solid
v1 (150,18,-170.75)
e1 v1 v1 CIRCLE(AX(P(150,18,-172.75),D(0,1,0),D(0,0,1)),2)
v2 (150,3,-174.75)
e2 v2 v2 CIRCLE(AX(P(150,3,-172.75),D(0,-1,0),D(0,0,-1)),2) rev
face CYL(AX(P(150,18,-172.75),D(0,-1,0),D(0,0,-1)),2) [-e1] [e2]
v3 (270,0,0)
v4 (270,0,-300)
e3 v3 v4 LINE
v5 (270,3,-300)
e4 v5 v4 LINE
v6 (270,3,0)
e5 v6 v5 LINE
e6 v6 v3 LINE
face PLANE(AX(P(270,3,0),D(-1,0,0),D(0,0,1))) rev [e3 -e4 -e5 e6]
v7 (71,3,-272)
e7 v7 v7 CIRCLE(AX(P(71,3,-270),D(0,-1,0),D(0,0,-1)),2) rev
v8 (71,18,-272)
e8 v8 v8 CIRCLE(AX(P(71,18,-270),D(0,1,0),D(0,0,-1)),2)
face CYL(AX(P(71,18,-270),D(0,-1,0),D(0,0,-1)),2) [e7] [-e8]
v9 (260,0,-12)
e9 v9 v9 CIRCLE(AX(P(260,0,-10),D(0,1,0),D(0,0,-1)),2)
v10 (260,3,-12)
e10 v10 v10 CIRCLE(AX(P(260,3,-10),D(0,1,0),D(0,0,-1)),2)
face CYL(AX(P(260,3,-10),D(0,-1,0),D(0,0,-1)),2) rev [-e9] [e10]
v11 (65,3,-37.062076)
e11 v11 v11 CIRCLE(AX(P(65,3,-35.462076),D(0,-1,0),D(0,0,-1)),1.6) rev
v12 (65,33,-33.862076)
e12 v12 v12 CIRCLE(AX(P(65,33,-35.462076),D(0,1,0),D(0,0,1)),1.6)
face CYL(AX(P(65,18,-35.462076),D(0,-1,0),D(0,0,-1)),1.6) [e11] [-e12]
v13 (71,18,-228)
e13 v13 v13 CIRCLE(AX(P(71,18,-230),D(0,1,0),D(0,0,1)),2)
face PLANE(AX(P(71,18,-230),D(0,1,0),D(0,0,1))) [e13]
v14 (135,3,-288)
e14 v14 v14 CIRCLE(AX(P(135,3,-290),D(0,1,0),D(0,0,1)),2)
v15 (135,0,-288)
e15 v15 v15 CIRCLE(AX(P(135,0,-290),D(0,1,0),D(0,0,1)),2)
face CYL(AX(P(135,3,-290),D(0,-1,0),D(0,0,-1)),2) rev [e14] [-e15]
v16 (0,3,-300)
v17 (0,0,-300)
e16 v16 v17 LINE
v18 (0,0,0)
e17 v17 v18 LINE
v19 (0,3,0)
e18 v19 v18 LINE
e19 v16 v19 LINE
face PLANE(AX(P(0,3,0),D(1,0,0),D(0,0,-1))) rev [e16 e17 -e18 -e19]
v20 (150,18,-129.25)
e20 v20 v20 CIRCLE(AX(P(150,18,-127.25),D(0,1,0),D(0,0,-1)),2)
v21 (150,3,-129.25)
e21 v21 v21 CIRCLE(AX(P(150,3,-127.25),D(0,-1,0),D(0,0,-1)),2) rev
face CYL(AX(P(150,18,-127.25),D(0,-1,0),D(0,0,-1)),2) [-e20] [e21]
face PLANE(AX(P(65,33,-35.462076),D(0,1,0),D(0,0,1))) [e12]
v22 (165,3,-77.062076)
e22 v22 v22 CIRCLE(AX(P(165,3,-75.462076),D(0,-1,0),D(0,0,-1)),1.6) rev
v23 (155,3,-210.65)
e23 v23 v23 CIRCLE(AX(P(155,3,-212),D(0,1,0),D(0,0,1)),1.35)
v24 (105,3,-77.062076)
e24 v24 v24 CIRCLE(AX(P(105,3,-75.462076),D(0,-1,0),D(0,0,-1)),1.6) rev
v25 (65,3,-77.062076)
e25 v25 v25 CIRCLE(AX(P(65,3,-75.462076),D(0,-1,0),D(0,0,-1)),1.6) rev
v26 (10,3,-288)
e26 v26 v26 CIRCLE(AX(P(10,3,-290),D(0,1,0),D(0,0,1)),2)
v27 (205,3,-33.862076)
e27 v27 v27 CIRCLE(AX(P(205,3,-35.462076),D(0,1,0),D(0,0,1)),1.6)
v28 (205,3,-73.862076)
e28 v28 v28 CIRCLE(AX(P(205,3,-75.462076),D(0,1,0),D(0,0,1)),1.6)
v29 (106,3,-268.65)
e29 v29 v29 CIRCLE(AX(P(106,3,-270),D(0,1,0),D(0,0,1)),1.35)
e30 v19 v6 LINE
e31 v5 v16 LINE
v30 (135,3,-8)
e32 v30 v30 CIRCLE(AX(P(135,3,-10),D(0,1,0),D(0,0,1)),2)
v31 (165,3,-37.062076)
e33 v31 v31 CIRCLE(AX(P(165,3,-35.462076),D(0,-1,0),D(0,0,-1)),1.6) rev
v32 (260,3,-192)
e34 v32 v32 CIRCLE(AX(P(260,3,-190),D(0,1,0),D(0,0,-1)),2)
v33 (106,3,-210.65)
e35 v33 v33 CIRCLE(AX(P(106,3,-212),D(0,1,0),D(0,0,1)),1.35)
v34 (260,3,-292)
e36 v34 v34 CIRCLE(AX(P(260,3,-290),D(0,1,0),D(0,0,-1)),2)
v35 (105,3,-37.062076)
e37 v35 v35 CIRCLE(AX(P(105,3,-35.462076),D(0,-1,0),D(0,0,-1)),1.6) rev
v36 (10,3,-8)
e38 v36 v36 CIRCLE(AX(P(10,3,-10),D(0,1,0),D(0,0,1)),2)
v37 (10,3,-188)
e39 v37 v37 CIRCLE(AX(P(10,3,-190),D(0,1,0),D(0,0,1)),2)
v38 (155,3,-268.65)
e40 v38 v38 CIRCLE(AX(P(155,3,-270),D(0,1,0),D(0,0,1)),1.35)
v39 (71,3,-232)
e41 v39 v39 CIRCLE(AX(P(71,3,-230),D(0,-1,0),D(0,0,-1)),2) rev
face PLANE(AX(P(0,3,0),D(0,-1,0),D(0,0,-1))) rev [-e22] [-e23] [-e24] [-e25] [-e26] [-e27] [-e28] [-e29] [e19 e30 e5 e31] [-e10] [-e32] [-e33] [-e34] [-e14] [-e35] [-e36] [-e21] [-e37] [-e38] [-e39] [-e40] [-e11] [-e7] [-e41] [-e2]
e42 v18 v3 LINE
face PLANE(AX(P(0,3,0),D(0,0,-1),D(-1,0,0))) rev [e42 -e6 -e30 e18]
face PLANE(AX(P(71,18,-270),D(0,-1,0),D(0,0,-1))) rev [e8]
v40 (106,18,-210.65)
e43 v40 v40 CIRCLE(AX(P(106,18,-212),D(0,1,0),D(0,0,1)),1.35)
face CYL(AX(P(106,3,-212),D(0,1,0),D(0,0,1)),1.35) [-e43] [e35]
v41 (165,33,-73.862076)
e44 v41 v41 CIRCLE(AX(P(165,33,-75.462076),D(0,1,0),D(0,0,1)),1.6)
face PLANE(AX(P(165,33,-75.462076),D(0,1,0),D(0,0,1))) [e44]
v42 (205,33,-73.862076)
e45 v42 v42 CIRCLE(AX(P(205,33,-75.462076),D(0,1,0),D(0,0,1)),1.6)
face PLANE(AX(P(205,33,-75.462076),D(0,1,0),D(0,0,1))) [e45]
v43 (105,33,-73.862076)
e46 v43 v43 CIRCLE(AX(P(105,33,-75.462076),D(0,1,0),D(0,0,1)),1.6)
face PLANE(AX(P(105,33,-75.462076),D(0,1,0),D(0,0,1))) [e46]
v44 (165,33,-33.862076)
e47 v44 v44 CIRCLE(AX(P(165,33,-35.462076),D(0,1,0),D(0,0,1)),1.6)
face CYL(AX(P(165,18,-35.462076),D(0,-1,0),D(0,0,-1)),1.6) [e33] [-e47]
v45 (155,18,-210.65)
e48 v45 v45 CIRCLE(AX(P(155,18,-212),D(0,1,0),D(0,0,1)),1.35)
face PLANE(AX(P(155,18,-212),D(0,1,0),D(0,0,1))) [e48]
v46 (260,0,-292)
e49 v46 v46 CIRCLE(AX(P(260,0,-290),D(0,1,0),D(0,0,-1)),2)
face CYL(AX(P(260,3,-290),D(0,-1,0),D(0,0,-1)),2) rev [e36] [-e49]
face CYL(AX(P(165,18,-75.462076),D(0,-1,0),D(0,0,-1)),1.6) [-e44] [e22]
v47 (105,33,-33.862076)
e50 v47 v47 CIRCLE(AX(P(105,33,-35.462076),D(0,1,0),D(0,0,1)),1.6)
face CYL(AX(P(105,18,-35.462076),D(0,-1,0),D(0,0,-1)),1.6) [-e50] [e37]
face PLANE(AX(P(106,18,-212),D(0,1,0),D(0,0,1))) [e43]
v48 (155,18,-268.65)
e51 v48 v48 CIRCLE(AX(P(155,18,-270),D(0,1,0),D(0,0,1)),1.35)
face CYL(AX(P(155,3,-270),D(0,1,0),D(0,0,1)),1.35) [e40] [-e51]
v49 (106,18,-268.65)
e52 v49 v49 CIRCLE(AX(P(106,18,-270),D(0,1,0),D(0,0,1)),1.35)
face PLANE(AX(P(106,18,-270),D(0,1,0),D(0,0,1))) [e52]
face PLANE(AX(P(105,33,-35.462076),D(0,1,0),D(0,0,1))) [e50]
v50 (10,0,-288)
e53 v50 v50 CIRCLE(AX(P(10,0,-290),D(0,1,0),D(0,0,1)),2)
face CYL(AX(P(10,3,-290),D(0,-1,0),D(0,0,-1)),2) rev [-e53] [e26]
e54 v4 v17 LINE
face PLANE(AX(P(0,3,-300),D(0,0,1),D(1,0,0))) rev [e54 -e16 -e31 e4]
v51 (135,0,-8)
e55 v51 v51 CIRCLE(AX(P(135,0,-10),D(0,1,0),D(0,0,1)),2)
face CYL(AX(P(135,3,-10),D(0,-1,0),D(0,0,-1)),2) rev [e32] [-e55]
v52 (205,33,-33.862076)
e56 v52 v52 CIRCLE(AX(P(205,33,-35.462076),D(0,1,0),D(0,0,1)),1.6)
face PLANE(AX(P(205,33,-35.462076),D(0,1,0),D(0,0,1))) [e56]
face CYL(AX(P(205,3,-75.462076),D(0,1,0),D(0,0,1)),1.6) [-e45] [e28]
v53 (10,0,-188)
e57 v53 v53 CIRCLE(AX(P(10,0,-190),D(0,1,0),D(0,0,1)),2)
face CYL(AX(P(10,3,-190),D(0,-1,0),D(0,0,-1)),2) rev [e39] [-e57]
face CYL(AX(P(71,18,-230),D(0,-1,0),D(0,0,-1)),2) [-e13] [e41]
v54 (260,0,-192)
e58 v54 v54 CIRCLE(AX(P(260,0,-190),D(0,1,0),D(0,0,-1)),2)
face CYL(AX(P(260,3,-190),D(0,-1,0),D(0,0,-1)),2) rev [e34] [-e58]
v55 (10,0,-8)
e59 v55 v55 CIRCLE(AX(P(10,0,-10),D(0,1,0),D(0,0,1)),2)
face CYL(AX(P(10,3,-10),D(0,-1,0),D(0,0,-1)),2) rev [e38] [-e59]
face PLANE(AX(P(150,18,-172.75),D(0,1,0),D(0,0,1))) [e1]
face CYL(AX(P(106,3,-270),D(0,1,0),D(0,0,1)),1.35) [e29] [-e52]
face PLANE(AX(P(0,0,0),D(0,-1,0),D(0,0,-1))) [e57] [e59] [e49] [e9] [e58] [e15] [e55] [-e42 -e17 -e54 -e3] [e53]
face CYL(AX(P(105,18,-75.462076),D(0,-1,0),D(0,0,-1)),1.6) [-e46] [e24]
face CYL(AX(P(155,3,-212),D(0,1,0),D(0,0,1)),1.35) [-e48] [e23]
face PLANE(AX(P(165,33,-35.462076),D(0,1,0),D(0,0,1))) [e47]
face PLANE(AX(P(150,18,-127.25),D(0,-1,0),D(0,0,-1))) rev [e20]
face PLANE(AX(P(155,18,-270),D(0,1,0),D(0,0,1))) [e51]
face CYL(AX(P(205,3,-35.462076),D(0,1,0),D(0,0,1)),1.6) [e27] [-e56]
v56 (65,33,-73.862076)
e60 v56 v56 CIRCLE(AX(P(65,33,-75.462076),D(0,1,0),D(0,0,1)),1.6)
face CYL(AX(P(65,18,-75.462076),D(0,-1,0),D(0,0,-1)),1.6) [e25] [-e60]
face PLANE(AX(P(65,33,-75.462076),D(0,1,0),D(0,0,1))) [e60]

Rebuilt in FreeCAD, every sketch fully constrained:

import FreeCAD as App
import Part
import Sketcher

V = App.Vector

doc = App.newDocument("Part")
body = doc.addObject("PartDesign::Body", "Body")

sketch1 = body.newObject("Sketcher::SketchObject", "Sketch")
sketch1.AttachmentSupport = (doc.getObject("XZ_Plane"), [""])
sketch1.MapMode = "FlatFace"
sketch1.addGeometry(Part.LineSegment(V(0, -300, 0), V(0, 0, 0)), False)
sketch1.addGeometry(Part.LineSegment(V(0, 0, 0), V(270, 0, 0)), False)
sketch1.addGeometry(Part.LineSegment(V(270, 0, 0), V(270, -300, 0)), False)
sketch1.addGeometry(Part.LineSegment(V(270, -300, 0), V(0, -300, 0)), False)
sketch1.addGeometry(Part.Circle(V(10, -10, 0), V(0, 0, 1), 2), False)
sketch1.addGeometry(Part.Circle(V(135, -10, 0), V(0, 0, 1), 2), False)
sketch1.addGeometry(Part.Circle(V(260, -10, 0), V(0, 0, 1), 2), False)
sketch1.addGeometry(Part.Circle(V(10, -190, 0), V(0, 0, 1), 2), False)
sketch1.addGeometry(Part.Circle(V(10, -290, 0), V(0, 0, 1), 2), False)
sketch1.addGeometry(Part.Circle(V(260, -190, 0), V(0, 0, 1), 2), False)
sketch1.addGeometry(Part.Circle(V(135, -290, 0), V(0, 0, 1), 2), False)
sketch1.addGeometry(Part.Circle(V(260, -290, 0), V(0, 0, 1), 2), False)
sketch1.addConstraint(Sketcher.Constraint("Coincident", 0, 2, 1, 1))
sketch1.addConstraint(Sketcher.Constraint("Coincident", 1, 2, 2, 1))
sketch1.addConstraint(Sketcher.Constraint("Coincident", 2, 2, 3, 1))
sketch1.addConstraint(Sketcher.Constraint("Coincident", 3, 2, 0, 1))
sketch1.addConstraint(Sketcher.Constraint("Vertical", 0))
sketch1.addConstraint(Sketcher.Constraint("Horizontal", 1))
sketch1.addConstraint(Sketcher.Constraint("Vertical", 2))
sketch1.addConstraint(Sketcher.Constraint("Horizontal", 3))
sketch1.addConstraint(Sketcher.Constraint("Coincident", 0, 2, -1, 1))
sketch1.addConstraint(Sketcher.Constraint("Equal", 4, 5))
sketch1.addConstraint(Sketcher.Constraint("Equal", 5, 6))
sketch1.addConstraint(Sketcher.Constraint("Equal", 6, 7))
sketch1.addConstraint(Sketcher.Constraint("Equal", 7, 8))
sketch1.addConstraint(Sketcher.Constraint("Equal", 8, 9))
sketch1.addConstraint(Sketcher.Constraint("Equal", 9, 10))
sketch1.addConstraint(Sketcher.Constraint("Equal", 10, 11))
sketch1.addConstraint(Sketcher.Constraint("Horizontal", 4, 3, 5, 3))
sketch1.addConstraint(Sketcher.Constraint("Horizontal", 5, 3, 6, 3))
sketch1.addConstraint(Sketcher.Constraint("Horizontal", 7, 3, 9, 3))
sketch1.addConstraint(Sketcher.Constraint("Horizontal", 8, 3, 10, 3))
sketch1.addConstraint(Sketcher.Constraint("Horizontal", 10, 3, 11, 3))
sketch1.addConstraint(Sketcher.Constraint("Vertical", 4, 3, 7, 3))
sketch1.addConstraint(Sketcher.Constraint("Vertical", 7, 3, 8, 3))
sketch1.addConstraint(Sketcher.Constraint("Vertical", 6, 3, 9, 3))
sketch1.addConstraint(Sketcher.Constraint("Vertical", 5, 3, 10, 3))
sketch1.addConstraint(Sketcher.Constraint("Vertical", 9, 3, 11, 3))
sketch1.addConstraint(Sketcher.Constraint("Diameter", 4, 4.0))
sketch1.addConstraint(Sketcher.Constraint("DistanceX", 1, 1, 1, 2, 270.0))
sketch1.addConstraint(Sketcher.Constraint("DistanceY", 0, 1, 0, 2, 300.0))
sketch1.addConstraint(Sketcher.Constraint("DistanceX", -1, 1, 4, 3, 10.0))
sketch1.addConstraint(Sketcher.Constraint("DistanceY", 4, 3, -1, 1, 10.0))
sketch1.addConstraint(Sketcher.Constraint("DistanceX", -1, 1, 5, 3, 135.0))
sketch1.addConstraint(Sketcher.Constraint("DistanceX", -1, 1, 6, 3, 260.0))
sketch1.addConstraint(Sketcher.Constraint("DistanceY", 7, 3, -1, 1, 190.0))
sketch1.addConstraint(Sketcher.Constraint("DistanceY", 8, 3, -1, 1, 290.0))
pad1 = body.newObject("PartDesign::Pad", "Pad")
pad1.Profile = sketch1
pad1.Length = 3
pad1.Reversed = True

sketch2 = body.newObject("Sketcher::SketchObject", "Sketch001")
sketch2.AttachmentSupport = (doc.getObject("XZ_Plane"), [""])
sketch2.MapMode = "FlatFace"
sketch2.AttachmentOffset = App.Placement(V(0, 0, -3), App.Rotation())
sketch2.addGeometry(Part.Circle(V(106, -270, 0), V(0, 0, 1), 1.35), False)
sketch2.addGeometry(Part.Circle(V(155, -270, 0), V(0, 0, 1), 1.35), False)
sketch2.addGeometry(Part.Circle(V(106, -212, 0), V(0, 0, 1), 1.35), False)
sketch2.addGeometry(Part.Circle(V(155, -212, 0), V(0, 0, 1), 1.35), False)
sketch2.addConstraint(Sketcher.Constraint("Equal", 0, 1))
sketch2.addConstraint(Sketcher.Constraint("Equal", 1, 2))
sketch2.addConstraint(Sketcher.Constraint("Equal", 2, 3))
sketch2.addConstraint(Sketcher.Constraint("Horizontal", 0, 3, 1, 3))
sketch2.addConstraint(Sketcher.Constraint("Horizontal", 2, 3, 3, 3))
sketch2.addConstraint(Sketcher.Constraint("Vertical", 0, 3, 2, 3))
sketch2.addConstraint(Sketcher.Constraint("Vertical", 1, 3, 3, 3))
sketch2.addConstraint(Sketcher.Constraint("Diameter", 0, 2.7))
sketch2.addConstraint(Sketcher.Constraint("DistanceX", -1, 1, 0, 3, 106.0))
sketch2.addConstraint(Sketcher.Constraint("DistanceY", 0, 3, -1, 1, 270.0))
sketch2.addConstraint(Sketcher.Constraint("DistanceX", -1, 1, 1, 3, 155.0))
sketch2.addConstraint(Sketcher.Constraint("DistanceY", 2, 3, -1, 1, 212.0))
pad2 = body.newObject("PartDesign::Pad", "Pad001")
pad2.Profile = sketch2
pad2.Length = 10
pad2.Reversed = True

sketch3 = body.newObject("Sketcher::SketchObject", "Sketch002")
sketch3.AttachmentSupport = (doc.getObject("XZ_Plane"), [""])
sketch3.MapMode = "FlatFace"
sketch3.AttachmentOffset = App.Placement(V(0, 0, -3), App.Rotation())
sketch3.addGeometry(Part.Circle(V(150, -172.75, 0), V(0, 0, 1), 2), False)
sketch3.addGeometry(Part.Circle(V(150, -127.25, 0), V(0, 0, 1), 2), False)
sketch3.addConstraint(Sketcher.Constraint("Equal", 0, 1))
sketch3.addConstraint(Sketcher.Constraint("Vertical", 0, 3, 1, 3))
sketch3.addConstraint(Sketcher.Constraint("Diameter", 0, 4.0))
sketch3.addConstraint(Sketcher.Constraint("DistanceX", -1, 1, 0, 3, 150.0))
sketch3.addConstraint(Sketcher.Constraint("DistanceY", 0, 3, 1, 3, 45.5))
sketch3.addConstraint(Sketcher.Constraint("DistanceY", 0, 3, -1, 1, 172.75))
pad3 = body.newObject("PartDesign::Pad", "Pad002")
pad3.Profile = sketch3
pad3.Length = 15
pad3.Reversed = True

sketch4 = body.newObject("Sketcher::SketchObject", "Sketch003")
sketch4.AttachmentSupport = (doc.getObject("XZ_Plane"), [""])
sketch4.MapMode = "FlatFace"
sketch4.AttachmentOffset = App.Placement(V(0, 0, -13), App.Rotation())
sketch4.addGeometry(Part.Circle(V(106, -212, 0), V(0, 0, 1), 1.35), False)
sketch4.addGeometry(Part.Circle(V(155, -212, 0), V(0, 0, 1), 1.35), False)
sketch4.addGeometry(Part.Circle(V(155, -270, 0), V(0, 0, 1), 1.35), False)
sketch4.addGeometry(Part.Circle(V(106, -270, 0), V(0, 0, 1), 1.35), False)
sketch4.addConstraint(Sketcher.Constraint("Equal", 0, 1))
sketch4.addConstraint(Sketcher.Constraint("Equal", 1, 2))
sketch4.addConstraint(Sketcher.Constraint("Equal", 2, 3))
sketch4.addConstraint(Sketcher.Constraint("Horizontal", 0, 3, 1, 3))
sketch4.addConstraint(Sketcher.Constraint("Horizontal", 2, 3, 3, 3))
sketch4.addConstraint(Sketcher.Constraint("Vertical", 1, 3, 2, 3))
sketch4.addConstraint(Sketcher.Constraint("Vertical", 0, 3, 3, 3))
sketch4.addConstraint(Sketcher.Constraint("Diameter", 0, 2.7))
sketch4.addConstraint(Sketcher.Constraint("DistanceX", -1, 1, 0, 3, 106.0))
sketch4.addConstraint(Sketcher.Constraint("DistanceY", 0, 3, -1, 1, 212.0))
sketch4.addConstraint(Sketcher.Constraint("DistanceX", -1, 1, 1, 3, 155.0))
sketch4.addConstraint(Sketcher.Constraint("DistanceY", 2, 3, -1, 1, 270.0))
pad4 = body.newObject("PartDesign::Pad", "Pad003")
pad4.Profile = sketch4
pad4.Length = 5
pad4.Reversed = True

sketch5 = body.newObject("Sketcher::SketchObject", "Sketch004")
sketch5.AttachmentSupport = (doc.getObject("XZ_Plane"), [""])
sketch5.MapMode = "FlatFace"
sketch5.AttachmentOffset = App.Placement(V(0, 0, -3), App.Rotation())
sketch5.addGeometry(Part.Circle(V(41, -270, 0), V(0, 0, 1), 2), False)
sketch5.addGeometry(Part.Circle(V(71, -270, 0), V(0, 0, 1), 2), False)
sketch5.addConstraint(Sketcher.Constraint("Equal", 0, 1))
sketch5.addConstraint(Sketcher.Constraint("Horizontal", 0, 3, 1, 3))
sketch5.addConstraint(Sketcher.Constraint("Diameter", 0, 4.0))
sketch5.addConstraint(Sketcher.Constraint("DistanceX", -1, 1, 0, 3, 41.0))
sketch5.addConstraint(Sketcher.Constraint("DistanceY", 0, 3, -1, 1, 270.0))
sketch5.addConstraint(Sketcher.Constraint("DistanceX", -1, 1, 1, 3, 71.0))
pad5 = body.newObject("PartDesign::Pad", "Pad004")
pad5.Profile = sketch5
pad5.Length = 15
pad5.Reversed = True

sketch6 = body.newObject("Sketcher::SketchObject", "Sketch005")
sketch6.AttachmentSupport = (doc.getObject("XZ_Plane"), [""])
sketch6.MapMode = "FlatFace"
sketch6.AttachmentOffset = App.Placement(V(0, 0, -3), App.Rotation())
sketch6.addGeometry(Part.Circle(V(65, -75.462076, 0), V(0, 0, 1), 1.6), False)
sketch6.addGeometry(Part.Circle(V(105, -75.462076, 0), V(0, 0, 1), 1.6), False)
sketch6.addGeometry(Part.Circle(V(65, -35.462076, 0), V(0, 0, 1), 1.6), False)
sketch6.addGeometry(Part.Circle(V(105, -35.462076, 0), V(0, 0, 1), 1.6), False)
sketch6.addGeometry(Part.Circle(V(165, -35.462076, 0), V(0, 0, 1), 1.6), False)
sketch6.addGeometry(Part.Circle(V(205, -35.462076, 0), V(0, 0, 1), 1.6), False)
sketch6.addGeometry(Part.Circle(V(205, -75.462076, 0), V(0, 0, 1), 1.6), False)
sketch6.addGeometry(Part.Circle(V(165, -75.462076, 0), V(0, 0, 1), 1.6), False)
sketch6.addConstraint(Sketcher.Constraint("Equal", 0, 1))
sketch6.addConstraint(Sketcher.Constraint("Equal", 1, 2))
sketch6.addConstraint(Sketcher.Constraint("Equal", 2, 3))
sketch6.addConstraint(Sketcher.Constraint("Equal", 3, 4))
sketch6.addConstraint(Sketcher.Constraint("Equal", 4, 5))
sketch6.addConstraint(Sketcher.Constraint("Equal", 5, 6))
sketch6.addConstraint(Sketcher.Constraint("Equal", 6, 7))
sketch6.addConstraint(Sketcher.Constraint("Horizontal", 0, 3, 1, 3))
sketch6.addConstraint(Sketcher.Constraint("Horizontal", 2, 3, 3, 3))
sketch6.addConstraint(Sketcher.Constraint("Horizontal", 3, 3, 4, 3))
sketch6.addConstraint(Sketcher.Constraint("Horizontal", 4, 3, 5, 3))
sketch6.addConstraint(Sketcher.Constraint("Horizontal", 1, 3, 6, 3))
sketch6.addConstraint(Sketcher.Constraint("Horizontal", 6, 3, 7, 3))
sketch6.addConstraint(Sketcher.Constraint("Vertical", 0, 3, 2, 3))
sketch6.addConstraint(Sketcher.Constraint("Vertical", 1, 3, 3, 3))
sketch6.addConstraint(Sketcher.Constraint("Vertical", 5, 3, 6, 3))
sketch6.addConstraint(Sketcher.Constraint("Vertical", 4, 3, 7, 3))
sketch6.addConstraint(Sketcher.Constraint("Diameter", 0, 3.2))
sketch6.addConstraint(Sketcher.Constraint("DistanceX", -1, 1, 0, 3, 65.0))
sketch6.addConstraint(Sketcher.Constraint("DistanceX", -1, 1, 1, 3, 105.0))
sketch6.addConstraint(Sketcher.Constraint("DistanceX", -1, 1, 4, 3, 165.0))
sketch6.addConstraint(Sketcher.Constraint("DistanceX", -1, 1, 5, 3, 205.0))
sketch6.addConstraint(Sketcher.Constraint("DistanceY", 0, 3, 2, 3, 40.0))
sketch6.addConstraint(Sketcher.Constraint("DistanceY", 0, 3, -1, 1, 75.462076))
pad6 = body.newObject("PartDesign::Pad", "Pad005")
pad6.Profile = sketch6
pad6.Length = 15
pad6.Reversed = True

sketch7 = body.newObject("Sketcher::SketchObject", "Sketch006")
sketch7.AttachmentSupport = (doc.getObject("XZ_Plane"), [""])
sketch7.MapMode = "FlatFace"
sketch7.AttachmentOffset = App.Placement(V(0, 0, -3), App.Rotation())
sketch7.addGeometry(Part.Circle(V(41, -230, 0), V(0, 0, 1), 2), False)
sketch7.addGeometry(Part.Circle(V(71, -230, 0), V(0, 0, 1), 2), False)
sketch7.addConstraint(Sketcher.Constraint("Equal", 0, 1))
sketch7.addConstraint(Sketcher.Constraint("Horizontal", 0, 3, 1, 3))
sketch7.addConstraint(Sketcher.Constraint("Diameter", 0, 4.0))
sketch7.addConstraint(Sketcher.Constraint("DistanceX", -1, 1, 0, 3, 41.0))
sketch7.addConstraint(Sketcher.Constraint("DistanceY", 0, 3, -1, 1, 230.0))
sketch7.addConstraint(Sketcher.Constraint("DistanceX", -1, 1, 1, 3, 71.0))
pad7 = body.newObject("PartDesign::Pad", "Pad006")
pad7.Profile = sketch7
pad7.Length = 15
pad7.Reversed = True

sketch8 = body.newObject("Sketcher::SketchObject", "Sketch007")
sketch8.AttachmentSupport = (doc.getObject("XZ_Plane"), [""])
sketch8.MapMode = "FlatFace"
sketch8.AttachmentOffset = App.Placement(V(0, 0, -3), App.Rotation())
sketch8.addGeometry(Part.Circle(V(205, -75.462076, 0), V(0, 0, 1), 1.6), False)
sketch8.addGeometry(Part.Circle(V(205, -35.462076, 0), V(0, 0, 1), 1.6), False)
sketch8.addConstraint(Sketcher.Constraint("Equal", 0, 1))
sketch8.addConstraint(Sketcher.Constraint("Vertical", 0, 3, 1, 3))
sketch8.addConstraint(Sketcher.Constraint("Diameter", 0, 3.2))
sketch8.addConstraint(Sketcher.Constraint("DistanceX", -1, 1, 0, 3, 205.0))
sketch8.addConstraint(Sketcher.Constraint("DistanceY", 0, 3, 1, 3, 40.0))
sketch8.addConstraint(Sketcher.Constraint("DistanceY", 0, 3, -1, 1, 75.462076))
pocket1 = body.newObject("PartDesign::Pocket", "Pocket")
pocket1.Profile = sketch8
pocket1.Length = 15

sketch9 = body.newObject("Sketcher::SketchObject", "Sketch008")
sketch9.AttachmentSupport = (doc.getObject("XZ_Plane"), [""])
sketch9.MapMode = "FlatFace"
sketch9.AttachmentOffset = App.Placement(V(0, 0, -3), App.Rotation())
sketch9.addGeometry(Part.Circle(V(185, -75.462076, 0), V(0, 0, 1), 1.6), False)
sketch9.addGeometry(Part.Circle(V(185, -35.462076, 0), V(0, 0, 1), 1.6), False)
sketch9.addConstraint(Sketcher.Constraint("Equal", 0, 1))
sketch9.addConstraint(Sketcher.Constraint("Vertical", 0, 3, 1, 3))
sketch9.addConstraint(Sketcher.Constraint("Diameter", 0, 3.2))
sketch9.addConstraint(Sketcher.Constraint("DistanceX", -1, 1, 0, 3, 185.0))
sketch9.addConstraint(Sketcher.Constraint("DistanceY", 0, 3, 1, 3, 40.0))
sketch9.addConstraint(Sketcher.Constraint("DistanceY", 0, 3, -1, 1, 75.462076))
pad8 = body.newObject("PartDesign::Pad", "Pad007")
pad8.Profile = sketch9
pad8.Length = 15
pad8.Reversed = True

sketch10 = body.newObject("Sketcher::SketchObject", "Sketch009")
sketch10.AttachmentSupport = (doc.getObject("XZ_Plane"), [""])
sketch10.MapMode = "FlatFace"
sketch10.AttachmentOffset = App.Placement(V(0, 0, -3), App.Rotation())
sketch10.addGeometry(Part.Circle(V(185, -75.462076, 0), V(0, 0, 1), 1.6), False)
sketch10.addGeometry(Part.Circle(V(185, -35.462076, 0), V(0, 0, 1), 1.6), False)
sketch10.addConstraint(Sketcher.Constraint("Equal", 0, 1))
sketch10.addConstraint(Sketcher.Constraint("Vertical", 0, 3, 1, 3))
sketch10.addConstraint(Sketcher.Constraint("Diameter", 0, 3.2))
sketch10.addConstraint(Sketcher.Constraint("DistanceX", -1, 1, 0, 3, 185.0))
sketch10.addConstraint(Sketcher.Constraint("DistanceY", 0, 3, 1, 3, 40.0))
sketch10.addConstraint(Sketcher.Constraint("DistanceY", 0, 3, -1, 1, 75.462076))
pocket2 = body.newObject("PartDesign::Pocket", "Pocket001")
pocket2.Profile = sketch10
pocket2.Length = 15

sketch11 = body.newObject("Sketcher::SketchObject", "Sketch010")
sketch11.AttachmentSupport = (doc.getObject("XZ_Plane"), [""])
sketch11.MapMode = "FlatFace"
sketch11.AttachmentOffset = App.Placement(V(0, 0, -18), App.Rotation())
sketch11.addGeometry(Part.Circle(V(205, -75.462076, 0), V(0, 0, 1), 1.6), False)
sketch11.addGeometry(Part.Circle(V(205, -35.462076, 0), V(0, 0, 1), 1.6), False)
sketch11.addConstraint(Sketcher.Constraint("Equal", 0, 1))
sketch11.addConstraint(Sketcher.Constraint("Vertical", 0, 3, 1, 3))
sketch11.addConstraint(Sketcher.Constraint("Diameter", 0, 3.2))
sketch11.addConstraint(Sketcher.Constraint("DistanceX", -1, 1, 0, 3, 205.0))
sketch11.addConstraint(Sketcher.Constraint("DistanceY", 0, 3, 1, 3, 40.0))
sketch11.addConstraint(Sketcher.Constraint("DistanceY", 0, 3, -1, 1, 75.462076))
pad9 = body.newObject("PartDesign::Pad", "Pad008")
pad9.Profile = sketch11
pad9.Length = 15

sketch12 = body.newObject("Sketcher::SketchObject", "Sketch011")
sketch12.AttachmentSupport = (doc.getObject("XZ_Plane"), [""])
sketch12.MapMode = "FlatFace"
sketch12.AttachmentOffset = App.Placement(V(0, 0, -18), App.Rotation())
sketch12.addGeometry(Part.Circle(V(65, -35.462076, 0), V(0, 0, 1), 1.6), False)
sketch12.addGeometry(Part.Circle(V(105, -35.462076, 0), V(0, 0, 1), 1.6), False)
sketch12.addGeometry(Part.Circle(V(105, -75.462076, 0), V(0, 0, 1), 1.6), False)
sketch12.addGeometry(Part.Circle(V(65, -75.462076, 0), V(0, 0, 1), 1.6), False)
sketch12.addGeometry(Part.Circle(V(165, -75.462076, 0), V(0, 0, 1), 1.6), False)
sketch12.addGeometry(Part.Circle(V(165, -35.462076, 0), V(0, 0, 1), 1.6), False)
sketch12.addGeometry(Part.Circle(V(205, -35.462076, 0), V(0, 0, 1), 1.6), False)
sketch12.addGeometry(Part.Circle(V(205, -75.462076, 0), V(0, 0, 1), 1.6), False)
sketch12.addConstraint(Sketcher.Constraint("Equal", 0, 1))
sketch12.addConstraint(Sketcher.Constraint("Equal", 1, 2))
sketch12.addConstraint(Sketcher.Constraint("Equal", 2, 3))
sketch12.addConstraint(Sketcher.Constraint("Equal", 3, 4))
sketch12.addConstraint(Sketcher.Constraint("Equal", 4, 5))
sketch12.addConstraint(Sketcher.Constraint("Equal", 5, 6))
sketch12.addConstraint(Sketcher.Constraint("Equal", 6, 7))
sketch12.addConstraint(Sketcher.Constraint("Horizontal", 0, 3, 1, 3))
sketch12.addConstraint(Sketcher.Constraint("Horizontal", 2, 3, 3, 3))
sketch12.addConstraint(Sketcher.Constraint("Horizontal", 3, 3, 4, 3))
sketch12.addConstraint(Sketcher.Constraint("Horizontal", 1, 3, 5, 3))
sketch12.addConstraint(Sketcher.Constraint("Horizontal", 5, 3, 6, 3))
sketch12.addConstraint(Sketcher.Constraint("Horizontal", 4, 3, 7, 3))
sketch12.addConstraint(Sketcher.Constraint("Vertical", 1, 3, 2, 3))
sketch12.addConstraint(Sketcher.Constraint("Vertical", 0, 3, 3, 3))
sketch12.addConstraint(Sketcher.Constraint("Vertical", 4, 3, 5, 3))
sketch12.addConstraint(Sketcher.Constraint("Vertical", 6, 3, 7, 3))
sketch12.addConstraint(Sketcher.Constraint("Diameter", 0, 3.2))
sketch12.addConstraint(Sketcher.Constraint("DistanceX", -1, 1, 0, 3, 65.0))
sketch12.addConstraint(Sketcher.Constraint("DistanceX", -1, 1, 1, 3, 105.0))
sketch12.addConstraint(Sketcher.Constraint("DistanceX", -1, 1, 4, 3, 165.0))
sketch12.addConstraint(Sketcher.Constraint("DistanceX", -1, 1, 6, 3, 205.0))
sketch12.addConstraint(Sketcher.Constraint("DistanceY", 2, 3, 1, 3, 40.0))
sketch12.addConstraint(Sketcher.Constraint("DistanceY", 0, 3, -1, 1, 35.462076))
pad10 = body.newObject("PartDesign::Pad", "Pad009")
pad10.Profile = sketch12
pad10.Length = 15
pad10.Reversed = True

sketch13 = body.newObject("Sketcher::SketchObject", "Sketch012")
sketch13.AttachmentSupport = (doc.getObject("XZ_Plane"), [""])
sketch13.MapMode = "FlatFace"
sketch13.AttachmentOffset = App.Placement(V(0, 0, -3), App.Rotation())
sketch13.addGeometry(Part.Circle(V(41, -270, 0), V(0, 0, 1), 2), False)
sketch13.addGeometry(Part.Circle(V(41, -230, 0), V(0, 0, 1), 2), False)
sketch13.addConstraint(Sketcher.Constraint("Equal", 0, 1))
sketch13.addConstraint(Sketcher.Constraint("Vertical", 0, 3, 1, 3))
sketch13.addConstraint(Sketcher.Constraint("Diameter", 0, 4.0))
sketch13.addConstraint(Sketcher.Constraint("DistanceX", -1, 1, 0, 3, 41.0))
sketch13.addConstraint(Sketcher.Constraint("DistanceY", 0, 3, -1, 1, 270.0))
sketch13.addConstraint(Sketcher.Constraint("DistanceY", 1, 3, -1, 1, 230.0))
pocket3 = body.newObject("PartDesign::Pocket", "Pocket002")
pocket3.Profile = sketch13
pocket3.Length = 15

sketch14 = body.newObject("Sketcher::SketchObject", "Sketch013")
sketch14.AttachmentSupport = (doc.getObject("XZ_Plane"), [""])
sketch14.MapMode = "FlatFace"
sketch14.AttachmentOffset = App.Placement(V(0, 0, -18), App.Rotation())
sketch14.addGeometry(Part.Circle(V(155, -190, 0), V(0, 0, 1), 1.35), False)
sketch14.addGeometry(Part.Circle(V(106, -190, 0), V(0, 0, 1), 1.35), False)
sketch14.addGeometry(Part.Circle(V(106, -248, 0), V(0, 0, 1), 1.35), False)
sketch14.addGeometry(Part.Circle(V(155, -248, 0), V(0, 0, 1), 1.35), False)
sketch14.addConstraint(Sketcher.Constraint("Equal", 0, 1))
sketch14.addConstraint(Sketcher.Constraint("Equal", 1, 2))
sketch14.addConstraint(Sketcher.Constraint("Equal", 2, 3))
sketch14.addConstraint(Sketcher.Constraint("Horizontal", 0, 3, 1, 3))
sketch14.addConstraint(Sketcher.Constraint("Horizontal", 2, 3, 3, 3))
sketch14.addConstraint(Sketcher.Constraint("Vertical", 1, 3, 2, 3))
sketch14.addConstraint(Sketcher.Constraint("Vertical", 0, 3, 3, 3))
sketch14.addConstraint(Sketcher.Constraint("Diameter", 0, 2.7))
sketch14.addConstraint(Sketcher.Constraint("DistanceX", -1, 1, 0, 3, 155.0))
sketch14.addConstraint(Sketcher.Constraint("DistanceY", 0, 3, -1, 1, 190.0))
sketch14.addConstraint(Sketcher.Constraint("DistanceX", -1, 1, 1, 3, 106.0))
sketch14.addConstraint(Sketcher.Constraint("DistanceY", 2, 3, -1, 1, 248.0))
pad11 = body.newObject("PartDesign::Pad", "Pad010")
pad11.Profile = sketch14
pad11.Length = 15

sketch15 = body.newObject("Sketcher::SketchObject", "Sketch014")
sketch15.AttachmentSupport = (doc.getObject("XZ_Plane"), [""])
sketch15.MapMode = "FlatFace"
sketch15.AttachmentOffset = App.Placement(V(0, 0, -3), App.Rotation())
sketch15.addGeometry(Part.Circle(V(106, -212, 0), V(0, 0, 1), 1.35), False)
sketch15.addGeometry(Part.Circle(V(155, -212, 0), V(0, 0, 1), 1.35), False)
sketch15.addGeometry(Part.Circle(V(155, -270, 0), V(0, 0, 1), 1.35), False)
sketch15.addGeometry(Part.Circle(V(106, -270, 0), V(0, 0, 1), 1.35), False)
sketch15.addConstraint(Sketcher.Constraint("Equal", 0, 1))
sketch15.addConstraint(Sketcher.Constraint("Equal", 1, 2))
sketch15.addConstraint(Sketcher.Constraint("Equal", 2, 3))
sketch15.addConstraint(Sketcher.Constraint("Horizontal", 0, 3, 1, 3))
sketch15.addConstraint(Sketcher.Constraint("Horizontal", 2, 3, 3, 3))
sketch15.addConstraint(Sketcher.Constraint("Vertical", 1, 3, 2, 3))
sketch15.addConstraint(Sketcher.Constraint("Vertical", 0, 3, 3, 3))
sketch15.addConstraint(Sketcher.Constraint("Diameter", 0, 2.7))
sketch15.addConstraint(Sketcher.Constraint("DistanceX", -1, 1, 0, 3, 106.0))
sketch15.addConstraint(Sketcher.Constraint("DistanceY", 0, 3, -1, 1, 212.0))
sketch15.addConstraint(Sketcher.Constraint("DistanceX", -1, 1, 1, 3, 155.0))
sketch15.addConstraint(Sketcher.Constraint("DistanceY", 2, 3, -1, 1, 270.0))
pocket4 = body.newObject("PartDesign::Pocket", "Pocket003")
pocket4.Profile = sketch15
pocket4.Length = 15

sketch16 = body.newObject("Sketcher::SketchObject", "Sketch015")
sketch16.AttachmentSupport = (doc.getObject("XZ_Plane"), [""])
sketch16.MapMode = "FlatFace"
sketch16.AttachmentOffset = App.Placement(V(0, 0, -18), App.Rotation())
sketch16.addGeometry(Part.Circle(V(106, -270, 0), V(0, 0, 1), 1.35), False)
sketch16.addGeometry(Part.Circle(V(155, -270, 0), V(0, 0, 1), 1.35), False)
sketch16.addGeometry(Part.Circle(V(106, -212, 0), V(0, 0, 1), 1.35), False)
sketch16.addGeometry(Part.Circle(V(155, -212, 0), V(0, 0, 1), 1.35), False)
sketch16.addConstraint(Sketcher.Constraint("Equal", 0, 1))
sketch16.addConstraint(Sketcher.Constraint("Equal", 1, 2))
sketch16.addConstraint(Sketcher.Constraint("Equal", 2, 3))
sketch16.addConstraint(Sketcher.Constraint("Horizontal", 0, 3, 1, 3))
sketch16.addConstraint(Sketcher.Constraint("Horizontal", 2, 3, 3, 3))
sketch16.addConstraint(Sketcher.Constraint("Vertical", 0, 3, 2, 3))
sketch16.addConstraint(Sketcher.Constraint("Vertical", 1, 3, 3, 3))
sketch16.addConstraint(Sketcher.Constraint("Diameter", 0, 2.7))
sketch16.addConstraint(Sketcher.Constraint("DistanceX", -1, 1, 0, 3, 106.0))
sketch16.addConstraint(Sketcher.Constraint("DistanceY", 0, 3, -1, 1, 270.0))
sketch16.addConstraint(Sketcher.Constraint("DistanceX", -1, 1, 1, 3, 155.0))
sketch16.addConstraint(Sketcher.Constraint("DistanceY", 2, 3, -1, 1, 212.0))
pad12 = body.newObject("PartDesign::Pad", "Pad011")
pad12.Profile = sketch16
pad12.Length = 15

sketch17 = body.newObject("Sketcher::SketchObject", "Sketch016")
sketch17.AttachmentSupport = (doc.getObject("XZ_Plane"), [""])
sketch17.MapMode = "FlatFace"
sketch17.AttachmentOffset = App.Placement(V(0, 0, -18), App.Rotation())
sketch17.addGeometry(Part.Circle(V(106, -248, 0), V(0, 0, 1), 1.35), False)
sketch17.addGeometry(Part.Circle(V(155, -248, 0), V(0, 0, 1), 1.35), False)
sketch17.addGeometry(Part.Circle(V(155, -190, 0), V(0, 0, 1), 1.35), False)
sketch17.addGeometry(Part.Circle(V(106, -190, 0), V(0, 0, 1), 1.35), False)
sketch17.addConstraint(Sketcher.Constraint("Equal", 0, 1))
sketch17.addConstraint(Sketcher.Constraint("Equal", 1, 2))
sketch17.addConstraint(Sketcher.Constraint("Equal", 2, 3))
sketch17.addConstraint(Sketcher.Constraint("Horizontal", 0, 3, 1, 3))
sketch17.addConstraint(Sketcher.Constraint("Horizontal", 2, 3, 3, 3))
sketch17.addConstraint(Sketcher.Constraint("Vertical", 1, 3, 2, 3))
sketch17.addConstraint(Sketcher.Constraint("Vertical", 0, 3, 3, 3))
sketch17.addConstraint(Sketcher.Constraint("Diameter", 0, 2.7))
sketch17.addConstraint(Sketcher.Constraint("DistanceX", -1, 1, 0, 3, 106.0))
sketch17.addConstraint(Sketcher.Constraint("DistanceY", 0, 3, -1, 1, 248.0))
sketch17.addConstraint(Sketcher.Constraint("DistanceX", -1, 1, 1, 3, 155.0))
sketch17.addConstraint(Sketcher.Constraint("DistanceY", 2, 3, -1, 1, 190.0))
pocket5 = body.newObject("PartDesign::Pocket", "Pocket004")
pocket5.Profile = sketch17
pocket5.Length = 15
pocket5.Reversed = True

doc.recompute()
